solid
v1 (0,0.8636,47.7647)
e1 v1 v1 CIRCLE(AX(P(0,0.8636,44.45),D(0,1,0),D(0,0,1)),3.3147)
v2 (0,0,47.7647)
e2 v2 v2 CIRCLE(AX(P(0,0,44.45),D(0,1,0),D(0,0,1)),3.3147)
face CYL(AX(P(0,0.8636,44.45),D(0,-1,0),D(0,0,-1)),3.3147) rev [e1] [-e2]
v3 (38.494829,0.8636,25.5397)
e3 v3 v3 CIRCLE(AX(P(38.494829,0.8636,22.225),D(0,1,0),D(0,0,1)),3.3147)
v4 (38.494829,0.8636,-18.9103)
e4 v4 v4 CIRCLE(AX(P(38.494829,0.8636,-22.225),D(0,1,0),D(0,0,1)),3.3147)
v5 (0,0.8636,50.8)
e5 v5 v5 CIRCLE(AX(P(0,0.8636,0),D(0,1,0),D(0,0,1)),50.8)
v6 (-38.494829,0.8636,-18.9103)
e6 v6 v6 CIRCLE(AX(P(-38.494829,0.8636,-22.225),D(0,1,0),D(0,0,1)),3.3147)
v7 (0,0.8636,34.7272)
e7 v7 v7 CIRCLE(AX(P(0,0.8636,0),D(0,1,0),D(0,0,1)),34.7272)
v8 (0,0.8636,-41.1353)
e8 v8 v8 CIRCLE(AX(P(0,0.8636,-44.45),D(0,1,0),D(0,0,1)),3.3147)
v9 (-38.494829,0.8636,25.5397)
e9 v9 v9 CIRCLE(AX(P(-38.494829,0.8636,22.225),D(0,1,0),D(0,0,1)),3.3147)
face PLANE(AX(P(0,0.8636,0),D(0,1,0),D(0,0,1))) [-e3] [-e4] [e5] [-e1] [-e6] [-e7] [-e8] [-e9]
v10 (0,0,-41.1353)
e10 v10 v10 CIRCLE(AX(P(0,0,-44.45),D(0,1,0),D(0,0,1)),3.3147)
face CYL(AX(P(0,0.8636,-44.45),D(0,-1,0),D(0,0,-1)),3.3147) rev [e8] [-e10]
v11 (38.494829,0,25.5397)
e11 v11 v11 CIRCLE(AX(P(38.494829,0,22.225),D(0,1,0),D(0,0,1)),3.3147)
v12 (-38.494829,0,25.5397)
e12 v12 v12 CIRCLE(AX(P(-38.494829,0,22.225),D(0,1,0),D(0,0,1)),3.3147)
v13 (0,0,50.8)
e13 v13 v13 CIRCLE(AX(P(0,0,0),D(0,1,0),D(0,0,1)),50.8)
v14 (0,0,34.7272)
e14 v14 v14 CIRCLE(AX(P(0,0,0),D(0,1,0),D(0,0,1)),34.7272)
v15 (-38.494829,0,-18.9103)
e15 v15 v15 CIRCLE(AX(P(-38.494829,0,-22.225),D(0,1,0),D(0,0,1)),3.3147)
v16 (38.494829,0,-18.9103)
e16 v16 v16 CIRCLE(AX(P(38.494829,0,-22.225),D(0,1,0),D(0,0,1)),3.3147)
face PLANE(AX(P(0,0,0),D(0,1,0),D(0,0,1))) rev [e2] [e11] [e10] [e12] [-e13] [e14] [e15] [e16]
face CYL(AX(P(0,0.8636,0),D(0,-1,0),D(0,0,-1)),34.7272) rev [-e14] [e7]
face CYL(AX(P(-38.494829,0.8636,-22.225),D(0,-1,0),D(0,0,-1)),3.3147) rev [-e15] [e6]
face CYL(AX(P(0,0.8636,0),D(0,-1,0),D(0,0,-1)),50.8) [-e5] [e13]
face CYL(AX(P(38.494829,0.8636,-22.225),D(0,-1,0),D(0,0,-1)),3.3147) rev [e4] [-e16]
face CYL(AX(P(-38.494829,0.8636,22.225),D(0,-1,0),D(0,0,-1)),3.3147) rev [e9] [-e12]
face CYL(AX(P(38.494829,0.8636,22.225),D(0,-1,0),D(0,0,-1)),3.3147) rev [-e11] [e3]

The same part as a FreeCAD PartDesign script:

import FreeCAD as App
import Part
import Sketcher
Q = App.Units.Quantity

doc = App.newDocument("Part")
body = doc.addObject("PartDesign::Body", "Body")

# Sketch on XZ plane
sketch1 = body.newObject("Sketcher::SketchObject", "Sketch")
sketch1.AttachmentSupport = (doc.getObject("XZ_Plane"), [""])
sketch1.MapMode = "FlatFace"
sketch1.addGeometry([
    Part.Circle(App.Vector(0, 0, 0), App.Vector(0, 0, 1), 50.8),  # 0
    Part.Circle(App.Vector(-38.494829, -22.225, 0), App.Vector(0, 0, 1), 3.3147),  # 1
    Part.Circle(App.Vector(0, -44.45, 0), App.Vector(0, 0, 1), 3.3147),  # 2
    Part.Circle(App.Vector(-38.494829, 22.225, 0), App.Vector(0, 0, 1), 3.3147),  # 3
    Part.Circle(App.Vector(0, 0, 0), App.Vector(0, 0, 1), 34.7272),  # 4
    Part.Circle(App.Vector(38.494829, -22.225, 0), App.Vector(0, 0, 1), 3.3147),  # 5
    Part.Circle(App.Vector(0, 44.45, 0), App.Vector(0, 0, 1), 3.3147),  # 6
    Part.Circle(App.Vector(38.494829, 22.225, 0), App.Vector(0, 0, 1), 3.3147),  # 7
], False)
sketch1.addConstraint([
    Sketcher.Constraint("Coincident", 0, 3, -1, 1),
    Sketcher.Constraint("Coincident", 4, 3, -1, 1),
    Sketcher.Constraint("Equal", 1, 2),
    Sketcher.Constraint("Equal", 2, 3),
    Sketcher.Constraint("Equal", 3, 5),
    Sketcher.Constraint("Equal", 5, 6),
    Sketcher.Constraint("Equal", 6, 7),
    Sketcher.Constraint("Symmetric", 3, 3, 5, 3, -1, 1),
    Sketcher.Constraint("Symmetric", 2, 3, 6, 3, -1, 1),
    Sketcher.Constraint("Symmetric", 1, 3, 7, 3, -1, 1),
    Sketcher.Constraint("Symmetric", 1, 3, 5, 3, -2),
    Sketcher.Constraint("PointOnObject", 2, 3, -2),
    Sketcher.Constraint("Diameter", 0, Q("4 in")),
    Sketcher.Constraint("Diameter", 1, Q("0.261 in")),
    Sketcher.Constraint("Diameter", 4, 69.4544),
    Sketcher.Constraint("DistanceY", 2, 3, -1, 1, Q("1.75 in")),
    Sketcher.Constraint("DistanceY", 1, 3, 3, 3, Q("1.75 in")),
    Sketcher.Constraint("DistanceX", 1, 3, -1, 1, 38.494829),
])
pad1 = body.newObject("PartDesign::Pad", "Pad")
pad1.Profile = sketch1
pad1.Length = Q("0.034 in")
pad1.Reversed = True

doc.recompute()
